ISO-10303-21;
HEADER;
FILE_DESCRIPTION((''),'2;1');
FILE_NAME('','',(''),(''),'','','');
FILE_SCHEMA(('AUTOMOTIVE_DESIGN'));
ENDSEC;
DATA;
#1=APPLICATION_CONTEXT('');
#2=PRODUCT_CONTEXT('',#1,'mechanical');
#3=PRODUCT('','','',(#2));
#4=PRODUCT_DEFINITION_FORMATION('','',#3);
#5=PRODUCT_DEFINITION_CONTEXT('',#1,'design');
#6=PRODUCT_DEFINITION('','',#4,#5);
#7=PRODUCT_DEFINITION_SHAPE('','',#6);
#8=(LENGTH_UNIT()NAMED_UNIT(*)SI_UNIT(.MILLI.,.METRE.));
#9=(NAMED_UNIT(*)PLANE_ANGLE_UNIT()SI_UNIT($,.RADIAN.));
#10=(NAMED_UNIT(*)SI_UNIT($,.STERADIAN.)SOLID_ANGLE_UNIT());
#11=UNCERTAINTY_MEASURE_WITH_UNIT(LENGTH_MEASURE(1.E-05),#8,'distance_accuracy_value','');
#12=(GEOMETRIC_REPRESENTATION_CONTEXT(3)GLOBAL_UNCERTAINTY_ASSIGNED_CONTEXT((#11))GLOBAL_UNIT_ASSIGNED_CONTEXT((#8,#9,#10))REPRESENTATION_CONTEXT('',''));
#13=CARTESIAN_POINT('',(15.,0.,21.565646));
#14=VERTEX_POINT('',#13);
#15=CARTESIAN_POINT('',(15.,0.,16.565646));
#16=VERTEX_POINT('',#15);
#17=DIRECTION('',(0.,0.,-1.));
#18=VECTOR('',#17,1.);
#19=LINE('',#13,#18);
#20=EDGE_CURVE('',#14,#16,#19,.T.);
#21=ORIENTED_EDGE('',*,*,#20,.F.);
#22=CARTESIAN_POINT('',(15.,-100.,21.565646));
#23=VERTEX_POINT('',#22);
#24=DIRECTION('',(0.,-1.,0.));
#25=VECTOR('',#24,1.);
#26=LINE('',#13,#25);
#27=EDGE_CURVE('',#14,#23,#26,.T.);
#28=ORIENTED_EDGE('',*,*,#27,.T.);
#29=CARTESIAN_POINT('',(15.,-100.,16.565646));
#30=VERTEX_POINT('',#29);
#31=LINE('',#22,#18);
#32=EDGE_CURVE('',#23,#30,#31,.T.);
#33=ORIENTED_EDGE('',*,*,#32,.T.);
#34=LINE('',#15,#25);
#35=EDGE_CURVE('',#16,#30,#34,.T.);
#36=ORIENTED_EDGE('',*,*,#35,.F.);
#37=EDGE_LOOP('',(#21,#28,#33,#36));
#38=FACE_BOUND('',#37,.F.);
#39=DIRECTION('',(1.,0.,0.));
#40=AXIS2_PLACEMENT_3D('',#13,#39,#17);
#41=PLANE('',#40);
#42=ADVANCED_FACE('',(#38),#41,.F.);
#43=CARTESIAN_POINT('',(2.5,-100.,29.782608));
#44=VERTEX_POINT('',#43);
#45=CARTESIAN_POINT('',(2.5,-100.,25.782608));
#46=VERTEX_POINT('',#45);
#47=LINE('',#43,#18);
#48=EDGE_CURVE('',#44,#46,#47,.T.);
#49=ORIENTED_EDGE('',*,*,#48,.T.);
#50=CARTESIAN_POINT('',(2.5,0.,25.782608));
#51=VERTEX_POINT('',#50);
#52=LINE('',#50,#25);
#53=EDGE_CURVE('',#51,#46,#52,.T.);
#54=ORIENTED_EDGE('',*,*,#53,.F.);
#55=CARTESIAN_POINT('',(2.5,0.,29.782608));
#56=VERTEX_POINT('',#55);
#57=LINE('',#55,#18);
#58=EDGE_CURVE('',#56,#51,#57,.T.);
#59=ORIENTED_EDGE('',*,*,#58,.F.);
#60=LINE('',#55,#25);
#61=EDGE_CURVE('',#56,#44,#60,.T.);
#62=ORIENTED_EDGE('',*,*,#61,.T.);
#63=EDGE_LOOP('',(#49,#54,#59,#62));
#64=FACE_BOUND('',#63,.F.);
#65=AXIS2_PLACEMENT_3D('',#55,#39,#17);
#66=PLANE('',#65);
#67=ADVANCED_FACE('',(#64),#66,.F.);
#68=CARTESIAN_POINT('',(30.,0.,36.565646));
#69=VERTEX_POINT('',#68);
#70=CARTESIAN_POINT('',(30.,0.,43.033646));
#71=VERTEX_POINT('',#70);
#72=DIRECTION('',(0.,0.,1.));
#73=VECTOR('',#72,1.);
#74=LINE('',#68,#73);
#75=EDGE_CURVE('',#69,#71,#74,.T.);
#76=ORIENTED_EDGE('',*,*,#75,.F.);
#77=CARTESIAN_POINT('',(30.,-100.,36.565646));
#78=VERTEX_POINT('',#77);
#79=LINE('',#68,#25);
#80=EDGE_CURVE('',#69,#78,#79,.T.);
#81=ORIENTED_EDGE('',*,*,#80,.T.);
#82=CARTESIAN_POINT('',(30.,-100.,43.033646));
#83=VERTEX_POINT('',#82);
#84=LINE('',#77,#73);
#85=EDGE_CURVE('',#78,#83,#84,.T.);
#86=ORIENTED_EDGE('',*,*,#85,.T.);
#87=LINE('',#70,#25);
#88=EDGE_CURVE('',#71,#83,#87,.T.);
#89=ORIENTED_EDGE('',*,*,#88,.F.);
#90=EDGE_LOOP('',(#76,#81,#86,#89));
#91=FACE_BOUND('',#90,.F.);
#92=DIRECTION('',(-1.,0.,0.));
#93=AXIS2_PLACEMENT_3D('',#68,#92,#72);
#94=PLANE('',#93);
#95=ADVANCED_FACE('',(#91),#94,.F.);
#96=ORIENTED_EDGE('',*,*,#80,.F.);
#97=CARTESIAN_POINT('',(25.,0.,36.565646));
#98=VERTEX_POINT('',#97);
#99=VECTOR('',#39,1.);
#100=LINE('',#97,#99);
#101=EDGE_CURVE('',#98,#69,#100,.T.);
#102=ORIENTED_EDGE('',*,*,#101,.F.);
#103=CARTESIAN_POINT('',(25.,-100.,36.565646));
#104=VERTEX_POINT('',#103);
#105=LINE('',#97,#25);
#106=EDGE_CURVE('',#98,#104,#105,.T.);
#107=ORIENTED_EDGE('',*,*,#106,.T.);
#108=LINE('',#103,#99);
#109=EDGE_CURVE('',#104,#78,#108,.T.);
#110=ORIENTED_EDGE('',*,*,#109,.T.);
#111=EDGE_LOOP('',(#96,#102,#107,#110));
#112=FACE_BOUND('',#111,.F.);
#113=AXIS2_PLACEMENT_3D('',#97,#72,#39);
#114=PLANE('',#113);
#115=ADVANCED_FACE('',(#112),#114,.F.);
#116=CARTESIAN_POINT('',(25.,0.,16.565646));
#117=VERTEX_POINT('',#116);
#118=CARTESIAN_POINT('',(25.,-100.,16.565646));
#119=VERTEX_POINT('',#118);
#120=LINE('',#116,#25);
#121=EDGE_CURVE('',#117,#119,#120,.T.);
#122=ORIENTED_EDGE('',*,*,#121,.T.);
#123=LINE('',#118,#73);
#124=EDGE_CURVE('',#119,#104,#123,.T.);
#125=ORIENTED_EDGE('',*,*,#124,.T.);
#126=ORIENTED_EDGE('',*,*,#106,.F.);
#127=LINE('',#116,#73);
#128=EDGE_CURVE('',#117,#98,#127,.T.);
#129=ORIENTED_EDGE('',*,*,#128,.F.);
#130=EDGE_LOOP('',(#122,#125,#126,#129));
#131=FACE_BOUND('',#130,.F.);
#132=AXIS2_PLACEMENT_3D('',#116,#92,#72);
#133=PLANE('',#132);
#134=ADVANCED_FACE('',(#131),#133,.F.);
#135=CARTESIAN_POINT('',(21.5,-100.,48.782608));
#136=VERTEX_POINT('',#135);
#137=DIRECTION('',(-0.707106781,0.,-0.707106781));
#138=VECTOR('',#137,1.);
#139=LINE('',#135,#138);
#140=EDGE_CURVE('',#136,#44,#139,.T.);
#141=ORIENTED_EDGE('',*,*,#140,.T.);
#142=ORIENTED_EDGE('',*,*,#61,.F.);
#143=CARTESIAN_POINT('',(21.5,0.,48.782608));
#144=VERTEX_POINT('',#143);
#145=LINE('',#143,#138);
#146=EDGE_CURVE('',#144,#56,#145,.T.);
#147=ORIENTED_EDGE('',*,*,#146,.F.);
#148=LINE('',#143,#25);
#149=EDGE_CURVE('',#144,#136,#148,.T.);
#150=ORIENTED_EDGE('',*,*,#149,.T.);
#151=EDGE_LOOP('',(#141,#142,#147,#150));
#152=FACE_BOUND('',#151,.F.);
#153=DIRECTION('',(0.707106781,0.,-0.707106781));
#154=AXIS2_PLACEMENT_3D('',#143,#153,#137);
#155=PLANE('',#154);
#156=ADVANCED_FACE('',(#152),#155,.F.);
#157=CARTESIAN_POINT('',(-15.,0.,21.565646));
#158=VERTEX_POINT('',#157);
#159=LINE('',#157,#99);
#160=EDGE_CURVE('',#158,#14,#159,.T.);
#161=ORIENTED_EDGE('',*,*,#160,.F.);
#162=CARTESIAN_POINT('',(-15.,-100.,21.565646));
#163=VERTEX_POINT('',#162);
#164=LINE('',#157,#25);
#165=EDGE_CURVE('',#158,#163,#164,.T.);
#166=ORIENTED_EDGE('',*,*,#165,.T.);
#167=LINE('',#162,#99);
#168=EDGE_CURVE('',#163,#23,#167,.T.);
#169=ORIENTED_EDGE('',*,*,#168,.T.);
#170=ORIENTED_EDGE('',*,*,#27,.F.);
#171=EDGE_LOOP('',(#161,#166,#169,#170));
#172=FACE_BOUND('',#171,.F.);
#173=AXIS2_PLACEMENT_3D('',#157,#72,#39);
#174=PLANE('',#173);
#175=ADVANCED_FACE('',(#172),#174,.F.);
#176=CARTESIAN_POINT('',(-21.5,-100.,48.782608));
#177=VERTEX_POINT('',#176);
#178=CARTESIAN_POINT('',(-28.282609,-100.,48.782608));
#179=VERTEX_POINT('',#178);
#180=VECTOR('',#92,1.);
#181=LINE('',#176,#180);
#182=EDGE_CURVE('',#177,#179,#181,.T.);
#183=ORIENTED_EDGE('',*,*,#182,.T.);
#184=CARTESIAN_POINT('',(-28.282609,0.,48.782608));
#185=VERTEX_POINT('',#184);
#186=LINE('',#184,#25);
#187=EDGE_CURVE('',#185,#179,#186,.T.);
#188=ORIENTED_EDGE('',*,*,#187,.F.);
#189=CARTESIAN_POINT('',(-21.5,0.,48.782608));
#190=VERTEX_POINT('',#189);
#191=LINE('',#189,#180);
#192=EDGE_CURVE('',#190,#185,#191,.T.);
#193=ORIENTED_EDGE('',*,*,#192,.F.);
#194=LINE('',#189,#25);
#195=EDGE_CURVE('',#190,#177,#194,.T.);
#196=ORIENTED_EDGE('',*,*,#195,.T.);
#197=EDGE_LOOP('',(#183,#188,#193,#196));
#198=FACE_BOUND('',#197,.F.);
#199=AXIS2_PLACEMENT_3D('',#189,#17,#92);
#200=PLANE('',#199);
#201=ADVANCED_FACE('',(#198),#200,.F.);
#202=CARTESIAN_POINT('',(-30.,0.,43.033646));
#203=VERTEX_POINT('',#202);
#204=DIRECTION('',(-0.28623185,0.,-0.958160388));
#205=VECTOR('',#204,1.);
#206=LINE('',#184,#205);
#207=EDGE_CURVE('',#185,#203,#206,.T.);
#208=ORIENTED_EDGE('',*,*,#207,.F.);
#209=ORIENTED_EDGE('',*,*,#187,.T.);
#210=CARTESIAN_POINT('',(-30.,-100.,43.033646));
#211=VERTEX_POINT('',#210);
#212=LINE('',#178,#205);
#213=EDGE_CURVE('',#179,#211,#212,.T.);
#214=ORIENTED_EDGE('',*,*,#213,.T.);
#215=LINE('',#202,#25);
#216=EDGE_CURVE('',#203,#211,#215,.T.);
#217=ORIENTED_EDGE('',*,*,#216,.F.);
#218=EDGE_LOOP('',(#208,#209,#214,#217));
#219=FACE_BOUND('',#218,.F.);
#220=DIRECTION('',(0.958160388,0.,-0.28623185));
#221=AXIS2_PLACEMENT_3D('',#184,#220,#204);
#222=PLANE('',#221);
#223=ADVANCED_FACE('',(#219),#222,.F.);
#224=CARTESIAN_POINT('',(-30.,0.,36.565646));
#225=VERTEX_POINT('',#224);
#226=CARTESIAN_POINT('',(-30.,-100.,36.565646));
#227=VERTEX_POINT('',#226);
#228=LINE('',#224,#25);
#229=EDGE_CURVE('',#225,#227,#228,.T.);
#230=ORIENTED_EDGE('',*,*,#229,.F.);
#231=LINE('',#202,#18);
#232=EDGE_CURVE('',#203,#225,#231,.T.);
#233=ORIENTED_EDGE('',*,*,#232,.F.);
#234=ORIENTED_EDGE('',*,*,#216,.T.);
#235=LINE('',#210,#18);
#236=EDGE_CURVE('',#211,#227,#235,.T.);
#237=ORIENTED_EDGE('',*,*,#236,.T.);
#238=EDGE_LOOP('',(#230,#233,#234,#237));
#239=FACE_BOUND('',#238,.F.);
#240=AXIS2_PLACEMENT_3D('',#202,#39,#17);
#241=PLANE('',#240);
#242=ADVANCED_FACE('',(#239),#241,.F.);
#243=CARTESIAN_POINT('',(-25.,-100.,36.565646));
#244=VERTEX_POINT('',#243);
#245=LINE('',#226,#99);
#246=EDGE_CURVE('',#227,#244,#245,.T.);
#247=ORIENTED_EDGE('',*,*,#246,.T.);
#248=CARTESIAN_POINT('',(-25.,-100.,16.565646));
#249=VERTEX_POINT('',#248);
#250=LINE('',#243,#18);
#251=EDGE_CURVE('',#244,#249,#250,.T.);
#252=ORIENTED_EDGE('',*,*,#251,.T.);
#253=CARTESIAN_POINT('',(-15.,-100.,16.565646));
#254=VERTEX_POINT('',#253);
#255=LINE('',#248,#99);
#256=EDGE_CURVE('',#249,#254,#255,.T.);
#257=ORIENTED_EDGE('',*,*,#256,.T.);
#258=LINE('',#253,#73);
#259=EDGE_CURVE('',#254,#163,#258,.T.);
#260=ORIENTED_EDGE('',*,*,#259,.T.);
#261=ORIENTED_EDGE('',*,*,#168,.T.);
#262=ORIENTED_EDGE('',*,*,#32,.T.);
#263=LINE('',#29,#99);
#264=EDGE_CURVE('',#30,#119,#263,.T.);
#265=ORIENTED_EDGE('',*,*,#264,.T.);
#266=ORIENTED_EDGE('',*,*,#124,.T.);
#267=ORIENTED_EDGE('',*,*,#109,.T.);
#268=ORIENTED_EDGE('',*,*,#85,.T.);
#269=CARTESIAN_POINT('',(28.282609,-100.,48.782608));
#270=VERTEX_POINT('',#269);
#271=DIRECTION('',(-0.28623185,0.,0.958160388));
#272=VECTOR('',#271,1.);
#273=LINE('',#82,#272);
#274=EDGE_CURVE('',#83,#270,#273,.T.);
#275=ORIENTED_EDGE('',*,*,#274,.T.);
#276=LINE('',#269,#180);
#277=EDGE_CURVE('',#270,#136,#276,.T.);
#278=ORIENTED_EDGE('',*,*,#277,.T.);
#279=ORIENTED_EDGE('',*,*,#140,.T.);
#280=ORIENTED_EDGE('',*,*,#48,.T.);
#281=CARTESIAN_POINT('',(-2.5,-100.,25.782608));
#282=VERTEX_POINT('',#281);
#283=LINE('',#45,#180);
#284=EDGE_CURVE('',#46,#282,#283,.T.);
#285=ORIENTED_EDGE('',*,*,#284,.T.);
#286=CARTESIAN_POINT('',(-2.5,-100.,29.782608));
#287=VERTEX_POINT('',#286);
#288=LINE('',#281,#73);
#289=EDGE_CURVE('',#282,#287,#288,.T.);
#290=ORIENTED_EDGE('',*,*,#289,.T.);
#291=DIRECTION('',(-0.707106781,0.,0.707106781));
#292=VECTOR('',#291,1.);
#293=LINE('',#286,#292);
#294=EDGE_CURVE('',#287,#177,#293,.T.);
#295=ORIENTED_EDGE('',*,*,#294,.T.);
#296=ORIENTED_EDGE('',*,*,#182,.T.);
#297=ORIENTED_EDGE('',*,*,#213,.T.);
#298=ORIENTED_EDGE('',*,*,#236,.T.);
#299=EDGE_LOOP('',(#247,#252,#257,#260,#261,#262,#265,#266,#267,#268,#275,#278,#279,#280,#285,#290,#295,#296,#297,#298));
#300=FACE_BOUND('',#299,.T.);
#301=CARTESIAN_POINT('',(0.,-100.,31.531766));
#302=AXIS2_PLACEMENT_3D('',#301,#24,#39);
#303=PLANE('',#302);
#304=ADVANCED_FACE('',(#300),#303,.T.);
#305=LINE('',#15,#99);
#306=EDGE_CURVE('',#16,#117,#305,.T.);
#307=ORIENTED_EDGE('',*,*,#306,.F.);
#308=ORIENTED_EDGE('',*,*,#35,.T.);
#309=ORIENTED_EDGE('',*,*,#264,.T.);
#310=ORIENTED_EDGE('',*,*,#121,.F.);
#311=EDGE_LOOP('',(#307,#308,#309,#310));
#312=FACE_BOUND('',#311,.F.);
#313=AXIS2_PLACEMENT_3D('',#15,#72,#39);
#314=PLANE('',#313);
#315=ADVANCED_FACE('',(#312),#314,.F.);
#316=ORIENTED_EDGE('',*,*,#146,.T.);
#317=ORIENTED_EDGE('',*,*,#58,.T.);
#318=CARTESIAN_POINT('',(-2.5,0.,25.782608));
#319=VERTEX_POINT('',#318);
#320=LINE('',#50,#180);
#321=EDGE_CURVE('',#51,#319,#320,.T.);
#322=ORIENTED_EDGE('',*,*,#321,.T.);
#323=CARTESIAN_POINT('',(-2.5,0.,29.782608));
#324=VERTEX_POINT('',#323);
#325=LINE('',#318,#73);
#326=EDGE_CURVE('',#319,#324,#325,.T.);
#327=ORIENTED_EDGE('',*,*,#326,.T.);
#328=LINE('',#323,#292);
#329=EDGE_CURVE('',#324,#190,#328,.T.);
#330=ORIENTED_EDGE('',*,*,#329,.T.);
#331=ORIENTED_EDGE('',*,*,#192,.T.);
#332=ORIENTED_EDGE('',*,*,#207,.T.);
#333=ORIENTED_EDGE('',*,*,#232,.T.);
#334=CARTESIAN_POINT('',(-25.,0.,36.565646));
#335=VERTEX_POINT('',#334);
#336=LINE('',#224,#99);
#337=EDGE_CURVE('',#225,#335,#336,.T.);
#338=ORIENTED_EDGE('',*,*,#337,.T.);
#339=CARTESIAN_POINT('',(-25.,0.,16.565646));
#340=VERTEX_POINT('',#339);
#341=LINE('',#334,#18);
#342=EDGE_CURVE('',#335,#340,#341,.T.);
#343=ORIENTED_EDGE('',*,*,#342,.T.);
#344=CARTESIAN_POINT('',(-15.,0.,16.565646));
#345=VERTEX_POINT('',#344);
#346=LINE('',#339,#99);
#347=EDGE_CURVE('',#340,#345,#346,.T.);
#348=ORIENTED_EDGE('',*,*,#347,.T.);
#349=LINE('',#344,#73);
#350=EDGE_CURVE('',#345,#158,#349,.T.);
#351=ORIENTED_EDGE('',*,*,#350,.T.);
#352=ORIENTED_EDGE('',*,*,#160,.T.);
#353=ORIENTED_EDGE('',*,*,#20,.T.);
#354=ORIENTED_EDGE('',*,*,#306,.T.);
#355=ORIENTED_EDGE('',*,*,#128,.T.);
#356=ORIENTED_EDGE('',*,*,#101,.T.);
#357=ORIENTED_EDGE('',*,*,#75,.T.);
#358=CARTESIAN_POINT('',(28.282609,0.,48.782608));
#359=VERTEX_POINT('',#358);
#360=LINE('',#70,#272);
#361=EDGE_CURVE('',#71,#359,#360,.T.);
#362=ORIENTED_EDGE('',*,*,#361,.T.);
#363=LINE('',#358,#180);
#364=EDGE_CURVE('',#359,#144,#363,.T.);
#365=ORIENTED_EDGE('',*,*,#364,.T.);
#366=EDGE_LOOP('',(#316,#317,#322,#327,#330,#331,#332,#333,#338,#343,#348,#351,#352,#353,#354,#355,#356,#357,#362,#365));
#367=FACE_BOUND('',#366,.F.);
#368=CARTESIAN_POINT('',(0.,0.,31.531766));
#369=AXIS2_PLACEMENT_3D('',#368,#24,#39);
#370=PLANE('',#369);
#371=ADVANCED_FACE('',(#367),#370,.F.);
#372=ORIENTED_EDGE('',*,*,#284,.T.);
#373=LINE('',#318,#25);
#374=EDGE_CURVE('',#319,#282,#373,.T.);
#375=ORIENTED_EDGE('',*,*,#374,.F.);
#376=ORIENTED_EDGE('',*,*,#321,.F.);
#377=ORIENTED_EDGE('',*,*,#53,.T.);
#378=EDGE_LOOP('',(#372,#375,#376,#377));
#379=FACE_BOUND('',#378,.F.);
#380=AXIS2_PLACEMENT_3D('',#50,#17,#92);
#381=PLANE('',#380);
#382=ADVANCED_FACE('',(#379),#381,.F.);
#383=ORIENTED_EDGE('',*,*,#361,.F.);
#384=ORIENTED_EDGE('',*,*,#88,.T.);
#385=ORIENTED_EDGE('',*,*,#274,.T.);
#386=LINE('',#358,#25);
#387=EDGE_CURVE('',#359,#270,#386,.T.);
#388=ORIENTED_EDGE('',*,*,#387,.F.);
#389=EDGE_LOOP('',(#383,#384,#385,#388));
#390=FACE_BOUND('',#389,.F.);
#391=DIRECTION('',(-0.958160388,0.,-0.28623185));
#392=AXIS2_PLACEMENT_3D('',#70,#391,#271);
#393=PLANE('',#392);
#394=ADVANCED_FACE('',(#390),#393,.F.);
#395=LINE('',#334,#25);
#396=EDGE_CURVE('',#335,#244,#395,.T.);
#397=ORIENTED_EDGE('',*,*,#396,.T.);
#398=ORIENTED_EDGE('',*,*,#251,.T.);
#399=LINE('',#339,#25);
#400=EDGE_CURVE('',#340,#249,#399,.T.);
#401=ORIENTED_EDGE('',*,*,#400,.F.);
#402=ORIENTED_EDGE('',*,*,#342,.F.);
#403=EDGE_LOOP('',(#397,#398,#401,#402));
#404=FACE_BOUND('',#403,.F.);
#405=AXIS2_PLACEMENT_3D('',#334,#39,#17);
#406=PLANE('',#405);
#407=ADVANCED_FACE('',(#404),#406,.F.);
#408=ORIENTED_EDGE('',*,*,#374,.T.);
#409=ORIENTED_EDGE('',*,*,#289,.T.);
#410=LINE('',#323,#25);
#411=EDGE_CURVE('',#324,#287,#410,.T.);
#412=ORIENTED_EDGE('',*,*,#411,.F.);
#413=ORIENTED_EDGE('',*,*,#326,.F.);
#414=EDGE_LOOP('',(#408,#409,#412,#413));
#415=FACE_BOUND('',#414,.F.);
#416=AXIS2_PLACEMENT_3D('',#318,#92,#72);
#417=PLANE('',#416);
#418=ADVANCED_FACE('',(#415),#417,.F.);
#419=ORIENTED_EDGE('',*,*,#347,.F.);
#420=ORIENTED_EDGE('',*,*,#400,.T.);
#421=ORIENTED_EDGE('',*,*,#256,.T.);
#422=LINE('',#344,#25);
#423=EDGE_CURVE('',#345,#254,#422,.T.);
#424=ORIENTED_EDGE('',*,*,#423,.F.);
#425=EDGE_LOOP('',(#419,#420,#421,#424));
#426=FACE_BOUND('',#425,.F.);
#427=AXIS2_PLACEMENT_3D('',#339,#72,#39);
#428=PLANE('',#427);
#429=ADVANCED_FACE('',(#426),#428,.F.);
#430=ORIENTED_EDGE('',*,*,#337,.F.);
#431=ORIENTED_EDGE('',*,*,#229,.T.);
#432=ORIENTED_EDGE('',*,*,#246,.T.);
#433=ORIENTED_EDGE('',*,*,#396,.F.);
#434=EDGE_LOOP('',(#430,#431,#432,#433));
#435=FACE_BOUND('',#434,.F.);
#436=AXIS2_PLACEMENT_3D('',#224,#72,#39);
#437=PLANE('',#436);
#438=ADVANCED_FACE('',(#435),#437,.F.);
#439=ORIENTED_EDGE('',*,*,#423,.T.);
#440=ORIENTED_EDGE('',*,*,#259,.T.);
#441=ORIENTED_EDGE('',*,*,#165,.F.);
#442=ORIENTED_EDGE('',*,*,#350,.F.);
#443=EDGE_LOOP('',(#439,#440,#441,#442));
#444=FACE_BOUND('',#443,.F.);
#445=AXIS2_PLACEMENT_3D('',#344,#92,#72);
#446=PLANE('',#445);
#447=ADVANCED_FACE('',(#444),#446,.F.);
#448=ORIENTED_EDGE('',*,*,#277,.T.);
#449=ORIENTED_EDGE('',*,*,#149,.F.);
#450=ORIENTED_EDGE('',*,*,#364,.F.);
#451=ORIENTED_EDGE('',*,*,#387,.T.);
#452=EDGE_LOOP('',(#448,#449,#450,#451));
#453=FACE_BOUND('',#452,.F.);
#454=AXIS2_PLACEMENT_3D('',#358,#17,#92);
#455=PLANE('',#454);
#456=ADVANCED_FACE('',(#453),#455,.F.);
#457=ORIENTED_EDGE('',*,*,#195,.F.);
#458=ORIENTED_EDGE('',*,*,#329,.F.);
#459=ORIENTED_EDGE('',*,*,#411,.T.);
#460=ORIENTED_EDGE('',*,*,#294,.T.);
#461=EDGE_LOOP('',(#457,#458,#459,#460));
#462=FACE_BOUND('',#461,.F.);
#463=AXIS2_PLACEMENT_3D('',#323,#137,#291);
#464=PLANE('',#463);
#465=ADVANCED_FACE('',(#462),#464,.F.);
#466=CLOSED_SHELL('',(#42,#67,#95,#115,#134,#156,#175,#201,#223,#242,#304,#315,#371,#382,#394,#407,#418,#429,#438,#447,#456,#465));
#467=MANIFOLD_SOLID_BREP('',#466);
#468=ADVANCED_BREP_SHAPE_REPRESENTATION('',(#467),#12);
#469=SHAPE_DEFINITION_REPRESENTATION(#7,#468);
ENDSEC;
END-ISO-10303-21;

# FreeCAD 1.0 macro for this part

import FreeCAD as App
import Part
import Sketcher
from FreeCAD import Vector
Q = App.Units.Quantity

doc = App.newDocument("Part")
body = doc.addObject("PartDesign::Body", "Body")

sketch1 = body.newObject("Sketcher::SketchObject", "Sketch")
sketch1.AttachmentSupport = (doc.getObject("XZ_Plane"), [""])
sketch1.MapMode = "FlatFace"
sketch1.addGeometry([
    Part.LineSegment(Vector(2.5, 25.8, 0), Vector(-2.5, 25.8, 0)),
    Part.LineSegment(Vector(-2.5, 25.8, 0), Vector(-2.5, 29.8, 0)),
    Part.LineSegment(Vector(-2.5, 29.8, 0), Vector(-21.5, 48.8, 0)),
    Part.LineSegment(Vector(-21.5, 48.8, 0), Vector(-28.3, 48.8, 0)),
    Part.LineSegment(Vector(-28.3, 48.8, 0), Vector(-30, 43, 0)),
    Part.LineSegment(Vector(-30, 43, 0), Vector(-30, 36.6, 0)),
    Part.LineSegment(Vector(-30, 36.6, 0), Vector(-25, 36.6, 0)),
    Part.LineSegment(Vector(-25, 36.6, 0), Vector(-25, 16.6, 0)),
    Part.LineSegment(Vector(-25, 16.6, 0), Vector(-15, 16.6, 0)),
    Part.LineSegment(Vector(-15, 16.6, 0), Vector(-15, 21.6, 0)),
    Part.LineSegment(Vector(-15, 21.6, 0), Vector(15, 21.6, 0)),
    Part.LineSegment(Vector(15, 21.6, 0), Vector(15, 16.6, 0)),
    Part.LineSegment(Vector(15, 16.6, 0), Vector(25, 16.6, 0)),
    Part.LineSegment(Vector(25, 16.6, 0), Vector(25, 36.6, 0)),
    Part.LineSegment(Vector(25, 36.6, 0), Vector(30, 36.6, 0)),
    Part.LineSegment(Vector(30, 36.6, 0), Vector(30, 43, 0)),
    Part.LineSegment(Vector(30, 43, 0), Vector(28.3, 48.8, 0)),
    Part.LineSegment(Vector(28.3, 48.8, 0), Vector(21.5, 48.8, 0)),
    Part.LineSegment(Vector(21.5, 48.8, 0), Vector(2.5, 29.8, 0)),
    Part.LineSegment(Vector(2.5, 29.8, 0), Vector(2.5, 25.8, 0)),
], False)
sketch1.addConstraint([
    Sketcher.Constraint("Coincident", 0, 2, 1, 1),
    Sketcher.Constraint("Coincident", 1, 2, 2, 1),
    Sketcher.Constraint("Coincident", 2, 2, 3, 1),
    Sketcher.Constraint("Coincident", 3, 2, 4, 1),
    Sketcher.Constraint("Coincident", 4, 2, 5, 1),
    Sketcher.Constraint("Coincident", 5, 2, 6, 1),
    Sketcher.Constraint("Coincident", 6, 2, 7, 1),
    Sketcher.Constraint("Coincident", 7, 2, 8, 1),
    Sketcher.Constraint("Coincident", 8, 2, 9, 1),
    Sketcher.Constraint("Coincident", 9, 2, 10, 1),
    Sketcher.Constraint("Coincident", 10, 2, 11, 1),
    Sketcher.Constraint("Coincident", 11, 2, 12, 1),
    Sketcher.Constraint("Coincident", 12, 2, 13, 1),
    Sketcher.Constraint("Coincident", 13, 2, 14, 1),
    Sketcher.Constraint("Coincident", 14, 2, 15, 1),
    Sketcher.Constraint("Coincident", 15, 2, 16, 1),
    Sketcher.Constraint("Coincident", 16, 2, 17, 1),
    Sketcher.Constraint("Coincident", 17, 2, 18, 1),
    Sketcher.Constraint("Coincident", 18, 2, 19, 1),
    Sketcher.Constraint("Coincident", 19, 2, 0, 1),
    Sketcher.Constraint("Horizontal", 0),
    Sketcher.Constraint("Vertical", 1),
    Sketcher.Constraint("Horizontal", 3),
    Sketcher.Constraint("Vertical", 5),
    Sketcher.Constraint("Horizontal", 6),
    Sketcher.Constraint("Vertical", 7),
    Sketcher.Constraint("Horizontal", 8),
    Sketcher.Constraint("Vertical", 9),
    Sketcher.Constraint("Horizontal", 10),
    Sketcher.Constraint("Vertical", 11),
    Sketcher.Constraint("Horizontal", 12),
    Sketcher.Constraint("Vertical", 13),
    Sketcher.Constraint("Horizontal", 14),
    Sketcher.Constraint("Vertical", 15),
    Sketcher.Constraint("Horizontal", 17),
    Sketcher.Constraint("Vertical", 19),
    Sketcher.Constraint("Symmetric", 8, 2, 11, 2, -2),
    Sketcher.Constraint("Symmetric", 6, 2, 13, 2, -2),
    Sketcher.Constraint("Symmetric", 4, 2, 15, 2, -2),
    Sketcher.Constraint("Symmetric", 3, 2, 16, 2, -2),
    Sketcher.Constraint("Symmetric", 1, 2, 18, 2, -2),
    Sketcher.Constraint("Perpendicular", 2, 18),
    Sketcher.Constraint("Equal", 0, 6),
    Sketcher.Constraint("Equal", 3, 17),
    Sketcher.Constraint("Equal", 14, 9),
    Sketcher.Constraint("DistanceX", 0, 2, 0, 1, Q("5 mm")),
    Sketcher.Constraint("DistanceX", 8, 1, 8, 2, Q("10 mm")),
    Sketcher.Constraint("DistanceX", 10, 1, 10, 2, Q("30 mm")),
    Sketcher.Constraint("DistanceY", 1, 1, 1, 2, Q("4 mm")),
    Sketcher.Constraint("DistanceY", 7, 2, 7, 1, Q("20 mm")),
    Sketcher.Constraint("Distance", 4, Q("6 mm")),
    Sketcher.Constraint("DistanceX", 2, 2, 1, 2, Q("19 mm")),
    Sketcher.Constraint("DistanceY", 5, 2, 5, 1, Q("6.468 mm")),
    Sketcher.Constraint("DistanceX", 3, 2, 3, 1, Q("6.782609 mm")),
    Sketcher.Constraint("DistanceY", -1, 1, 0, 2, Q("25.782608 mm")),
])
pad1 = body.newObject("PartDesign::Pad", "Pad")
pad1.Profile = sketch1
pad1.Length = 100

doc.recompute()
